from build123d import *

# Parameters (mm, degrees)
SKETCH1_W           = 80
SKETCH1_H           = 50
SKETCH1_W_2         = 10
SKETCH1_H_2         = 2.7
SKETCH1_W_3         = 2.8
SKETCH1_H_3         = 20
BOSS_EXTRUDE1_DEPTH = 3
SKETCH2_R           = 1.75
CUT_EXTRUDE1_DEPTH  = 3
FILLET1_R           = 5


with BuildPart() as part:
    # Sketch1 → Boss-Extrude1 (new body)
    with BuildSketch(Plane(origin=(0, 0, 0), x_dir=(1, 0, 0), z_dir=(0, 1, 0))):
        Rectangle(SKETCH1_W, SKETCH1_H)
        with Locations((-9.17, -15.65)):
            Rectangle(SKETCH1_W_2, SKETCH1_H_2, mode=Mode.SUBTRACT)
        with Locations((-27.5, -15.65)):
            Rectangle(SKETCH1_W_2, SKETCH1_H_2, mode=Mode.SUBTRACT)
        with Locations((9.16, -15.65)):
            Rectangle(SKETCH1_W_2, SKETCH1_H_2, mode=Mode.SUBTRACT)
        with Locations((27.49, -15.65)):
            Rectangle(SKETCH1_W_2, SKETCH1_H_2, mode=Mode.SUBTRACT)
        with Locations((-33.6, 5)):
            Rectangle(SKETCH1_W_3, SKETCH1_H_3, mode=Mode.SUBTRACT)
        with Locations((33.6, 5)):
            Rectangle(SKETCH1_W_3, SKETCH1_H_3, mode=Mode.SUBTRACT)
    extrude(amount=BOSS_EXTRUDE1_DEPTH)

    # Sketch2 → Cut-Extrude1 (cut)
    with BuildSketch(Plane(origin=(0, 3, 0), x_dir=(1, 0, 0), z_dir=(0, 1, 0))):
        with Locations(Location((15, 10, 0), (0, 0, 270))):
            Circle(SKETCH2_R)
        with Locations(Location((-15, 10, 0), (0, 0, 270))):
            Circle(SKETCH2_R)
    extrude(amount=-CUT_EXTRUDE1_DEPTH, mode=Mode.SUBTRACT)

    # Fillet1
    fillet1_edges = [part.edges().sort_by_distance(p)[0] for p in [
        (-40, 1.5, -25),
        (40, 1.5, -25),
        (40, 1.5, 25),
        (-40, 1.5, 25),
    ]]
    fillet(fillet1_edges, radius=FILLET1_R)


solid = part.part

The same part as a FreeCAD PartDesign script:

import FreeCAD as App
import Part
import Sketcher
from FreeCAD import Vector


def edges_at(feature, points):
    """Names of the edges that pass closest to the given points."""
    edges = feature.Shape.Edges
    near = lambda p: min(range(len(edges)), key=lambda i: edges[i].distToShape(Part.Vertex(*p))[0])
    return sorted({f"Edge{near(p) + 1}" for p in points})

doc = App.newDocument("Part")
params = doc.addObject("Spreadsheet::Sheet", "Params")
for row, (alias, value) in enumerate([
    ("sketch1_width", "80 mm"),
    ("sketch1_width2", "10 mm"),
    ("sketch1_height", "50 mm"),
    ("sketch1_height2", "20 mm"),
    ("sketch1_width3", "2.8 mm"),
    ("pad1_length", "3 mm"),
    ("sketch2_diameter", "3.5 mm"),
    ("pocket1_length", "3 mm"),
    ("fillet_radius", "5 mm"),
], start=1):
    params.set(f"A{row}", alias)
    params.set(f"B{row}", "=" + value)
    params.setAlias(f"B{row}", alias)

body = doc.addObject("PartDesign::Body", "Body")

# Sketch on XZ plane
sketch1 = body.newObject("Sketcher::SketchObject", "Sketch")
sketch1.AttachmentSupport = (doc.getObject("XZ_Plane"), [""])
sketch1.MapMode = "FlatFace"
sketch1.addGeometry(Part.LineSegment(Vector(-40, -25, 0), Vector(-40, 25, 0)), False)
sketch1.addGeometry(Part.LineSegment(Vector(-40, 25, 0), Vector(40, 25, 0)), False)
sketch1.addGeometry(Part.LineSegment(Vector(40, 25, 0), Vector(40, -25, 0)), False)
sketch1.addGeometry(Part.LineSegment(Vector(40, -25, 0), Vector(-40, -25, 0)), False)
sketch1.addGeometry(Part.LineSegment(Vector(-22.5, 17, 0), Vector(-32.5, 17, 0)), False)
sketch1.addGeometry(Part.LineSegment(Vector(-32.5, 17, 0), Vector(-32.5, 14.3, 0)), False)
sketch1.addGeometry(Part.LineSegment(Vector(-32.5, 14.3, 0), Vector(-22.5, 14.3, 0)), False)
sketch1.addGeometry(Part.LineSegment(Vector(-22.5, 14.3, 0), Vector(-22.5, 17, 0)), False)
sketch1.addGeometry(Part.LineSegment(Vector(-4.2, 17, 0), Vector(-14.2, 17, 0)), False)
sketch1.addGeometry(Part.LineSegment(Vector(-14.2, 17, 0), Vector(-14.2, 14.3, 0)), False)
sketch1.addGeometry(Part.LineSegment(Vector(-14.2, 14.3, 0), Vector(-4.2, 14.3, 0)), False)
sketch1.addGeometry(Part.LineSegment(Vector(-4.2, 14.3, 0), Vector(-4.2, 17, 0)), False)
sketch1.addGeometry(Part.LineSegment(Vector(14.2, 17, 0), Vector(4.2, 17, 0)), False)
sketch1.addGeometry(Part.LineSegment(Vector(4.2, 17, 0), Vector(4.2, 14.3, 0)), False)
sketch1.addGeometry(Part.LineSegment(Vector(4.2, 14.3, 0), Vector(14.2, 14.3, 0)), False)
sketch1.addGeometry(Part.LineSegment(Vector(14.2, 14.3, 0), Vector(14.2, 17, 0)), False)
sketch1.addGeometry(Part.LineSegment(Vector(32.5, 17, 0), Vector(22.5, 17, 0)), False)
sketch1.addGeometry(Part.LineSegment(Vector(22.5, 17, 0), Vector(22.5, 14.3, 0)), False)
sketch1.addGeometry(Part.LineSegment(Vector(22.5, 14.3, 0), Vector(32.5, 14.3, 0)), False)
sketch1.addGeometry(Part.LineSegment(Vector(32.5, 14.3, 0), Vector(32.5, 17, 0)), False)
sketch1.addGeometry(Part.LineSegment(Vector(-32.2, 5, 0), Vector(-35, 5, 0)), False)
sketch1.addGeometry(Part.LineSegment(Vector(-35, 5, 0), Vector(-35, -15, 0)), False)
sketch1.addGeometry(Part.LineSegment(Vector(-35, -15, 0), Vector(-32.2, -15, 0)), False)
sketch1.addGeometry(Part.LineSegment(Vector(-32.2, -15, 0), Vector(-32.2, 5, 0)), False)
sketch1.addGeometry(Part.LineSegment(Vector(35, 5, 0), Vector(32.2, 5, 0)), False)
sketch1.addGeometry(Part.LineSegment(Vector(32.2, 5, 0), Vector(32.2, -15, 0)), False)
sketch1.addGeometry(Part.LineSegment(Vector(32.2, -15, 0), Vector(35, -15, 0)), False)
sketch1.addGeometry(Part.LineSegment(Vector(35, -15, 0), Vector(35, 5, 0)), False)
sketch1.addConstraint(Sketcher.Constraint("Coincident", 0, 2, 1, 1))
sketch1.addConstraint(Sketcher.Constraint("Coincident", 1, 2, 2, 1))
sketch1.addConstraint(Sketcher.Constraint("Coincident", 2, 2, 3, 1))
sketch1.addConstraint(Sketcher.Constraint("Coincident", 3, 2, 0, 1))
sketch1.addConstraint(Sketcher.Constraint("Coincident", 4, 2, 5, 1))
sketch1.addConstraint(Sketcher.Constraint("Coincident", 5, 2, 6, 1))
sketch1.addConstraint(Sketcher.Constraint("Coincident", 6, 2, 7, 1))
sketch1.addConstraint(Sketcher.Constraint("Coincident", 7, 2, 4, 1))
sketch1.addConstraint(Sketcher.Constraint("Coincident", 8, 2, 9, 1))
sketch1.addConstraint(Sketcher.Constraint("Coincident", 9, 2, 10, 1))
sketch1.addConstraint(Sketcher.Constraint("Coincident", 10, 2, 11, 1))
sketch1.addConstraint(Sketcher.Constraint("Coincident", 11, 2, 8, 1))
sketch1.addConstraint(Sketcher.Constraint("Coincident", 12, 2, 13, 1))
sketch1.addConstraint(Sketcher.Constraint("Coincident", 13, 2, 14, 1))
sketch1.addConstraint(Sketcher.Constraint("Coincident", 14, 2, 15, 1))
sketch1.addConstraint(Sketcher.Constraint("Coincident", 15, 2, 12, 1))
sketch1.addConstraint(Sketcher.Constraint("Coincident", 16, 2, 17, 1))
sketch1.addConstraint(Sketcher.Constraint("Coincident", 17, 2, 18, 1))
sketch1.addConstraint(Sketcher.Constraint("Coincident", 18, 2, 19, 1))
sketch1.addConstraint(Sketcher.Constraint("Coincident", 19, 2, 16, 1))
sketch1.addConstraint(Sketcher.Constraint("Coincident", 20, 2, 21, 1))
sketch1.addConstraint(Sketcher.Constraint("Coincident", 21, 2, 22, 1))
sketch1.addConstraint(Sketcher.Constraint("Coincident", 22, 2, 23, 1))
sketch1.addConstraint(Sketcher.Constraint("Coincident", 23, 2, 20, 1))
sketch1.addConstraint(Sketcher.Constraint("Coincident", 24, 2, 25, 1))
sketch1.addConstraint(Sketcher.Constraint("Coincident", 25, 2, 26, 1))
sketch1.addConstraint(Sketcher.Constraint("Coincident", 26, 2, 27, 1))
sketch1.addConstraint(Sketcher.Constraint("Coincident", 27, 2, 24, 1))
sketch1.addConstraint(Sketcher.Constraint("Vertical", 0))
sketch1.addConstraint(Sketcher.Constraint("Horizontal", 1))
sketch1.addConstraint(Sketcher.Constraint("Vertical", 2))
sketch1.addConstraint(Sketcher.Constraint("Horizontal", 3))
sketch1.addConstraint(Sketcher.Constraint("Horizontal", 4))
sketch1.addConstraint(Sketcher.Constraint("Vertical", 5))
sketch1.addConstraint(Sketcher.Constraint("Horizontal", 6))
sketch1.addConstraint(Sketcher.Constraint("Vertical", 7))
sketch1.addConstraint(Sketcher.Constraint("Horizontal", 8))
sketch1.addConstraint(Sketcher.Constraint("Vertical", 9))
sketch1.addConstraint(Sketcher.Constraint("Horizontal", 10))
sketch1.addConstraint(Sketcher.Constraint("Vertical", 11))
sketch1.addConstraint(Sketcher.Constraint("Horizontal", 12))
sketch1.addConstraint(Sketcher.Constraint("Vertical", 13))
sketch1.addConstraint(Sketcher.Constraint("Horizontal", 14))
sketch1.addConstraint(Sketcher.Constraint("Vertical", 15))
sketch1.addConstraint(Sketcher.Constraint("Horizontal", 16))
sketch1.addConstraint(Sketcher.Constraint("Vertical", 17))
sketch1.addConstraint(Sketcher.Constraint("Horizontal", 18))
sketch1.addConstraint(Sketcher.Constraint("Vertical", 19))
sketch1.addConstraint(Sketcher.Constraint("Horizontal", 20))
sketch1.addConstraint(Sketcher.Constraint("Vertical", 21))
sketch1.addConstraint(Sketcher.Constraint("Horizontal", 22))
sketch1.addConstraint(Sketcher.Constraint("Vertical", 23))
sketch1.addConstraint(Sketcher.Constraint("Horizontal", 24))
sketch1.addConstraint(Sketcher.Constraint("Vertical", 25))
sketch1.addConstraint(Sketcher.Constraint("Horizontal", 26))
sketch1.addConstraint(Sketcher.Constraint("Vertical", 27))
sketch1.addConstraint(Sketcher.Constraint("Symmetric", 0, 2, 2, 2, -1, 1))
sketch1.addConstraint(Sketcher.Constraint("Symmetric", 23, 2, 24, 2, -2))
sketch1.addConstraint(Sketcher.Constraint("Symmetric", 21, 2, 26, 2, -2))
sketch1.addConstraint(Sketcher.Constraint("Horizontal", 7, 2, 8, 2))
sketch1.addConstraint(Sketcher.Constraint("Horizontal", 6, 2, 9, 2))
sketch1.addConstraint(Sketcher.Constraint("Horizontal", 11, 2, 12, 2))
sketch1.addConstraint(Sketcher.Constraint("Horizontal", 10, 2, 13, 2))
sketch1.addConstraint(Sketcher.Constraint("Horizontal", 15, 2, 16, 2))
sketch1.addConstraint(Sketcher.Constraint("Horizontal", 14, 2, 17, 2))
sketch1.addConstraint(Sketcher.Constraint("Equal", 6, 8))
sketch1.addConstraint(Sketcher.Constraint("Equal", 10, 12))
sketch1.addConstraint(Sketcher.Constraint("Equal", 14, 16))
sketch1.addConstraint(Sketcher.Constraint("DistanceX", 1, 1, 1, 2, 80.0))
sketch1.addConstraint(Sketcher.Constraint("DistanceX", 4, 2, 4, 1, 10.0))
sketch1.addConstraint(Sketcher.Constraint("DistanceY", 0, 1, 0, 2, 50.0))
sketch1.addConstraint(Sketcher.Constraint("DistanceY", 21, 2, 21, 1, 20.0))
sketch1.addConstraint(Sketcher.Constraint("DistanceX", 20, 2, 20, 1, 2.8))
sketch1.addConstraint(Sketcher.Constraint("DistanceY", 5, 2, 5, 1, 2.7))
sketch1.addConstraint(Sketcher.Constraint("DistanceY", -1, 1, 4, 2, 17.0))
sketch1.addConstraint(Sketcher.Constraint("DistanceX", 20, 2, -1, 1, 35.0))
sketch1.addConstraint(Sketcher.Constraint("DistanceY", -1, 1, 20, 2, 5.0))
sketch1.addConstraint(Sketcher.Constraint("DistanceX", 4, 2, -1, 1, 32.5))
sketch1.addConstraint(Sketcher.Constraint("DistanceX", 8, 2, -1, 1, 14.17))
sketch1.addConstraint(Sketcher.Constraint("DistanceX", -1, 1, 12, 2, 4.16))
sketch1.addConstraint(Sketcher.Constraint("DistanceX", -1, 1, 16, 2, 22.49))
sketch1.setExpression("Constraints[68]", "Params.sketch1_width")
sketch1.setExpression("Constraints[69]", "Params.sketch1_width2")
sketch1.setExpression("Constraints[70]", "Params.sketch1_height")
sketch1.setExpression("Constraints[71]", "Params.sketch1_height2")
sketch1.setExpression("Constraints[72]", "Params.sketch1_width3")
pad1 = body.newObject("PartDesign::Pad", "Pad")
pad1.Profile = sketch1
pad1.setExpression("Length", "Params.pad1_length")
pad1.Reversed = True

# Sketch on XZ plane
sketch2 = body.newObject("Sketcher::SketchObject", "Sketch001")
sketch2.AttachmentSupport = (doc.getObject("XZ_Plane"), [""])
sketch2.MapMode = "FlatFace"
sketch2.AttachmentOffset = App.Placement(Vector(0, 0, -3), App.Rotation())
sketch2.addGeometry(Part.Circle(Vector(15, -10, 0), Vector(0, 0, 1), 1.8), False)
sketch2.addGeometry(Part.Circle(Vector(-15, -10, 0), Vector(0, 0, 1), 1.8), False)
sketch2.addConstraint(Sketcher.Constraint("Equal", 0, 1))
sketch2.addConstraint(Sketcher.Constraint("Symmetric", 0, 3, 1, 3, -2))
sketch2.addConstraint(Sketcher.Constraint("Diameter", 0, 3.5))
sketch2.addConstraint(Sketcher.Constraint("DistanceX", -1, 1, 0, 3, 15.0))
sketch2.addConstraint(Sketcher.Constraint("DistanceY", 0, 3, -1, 1, 10.0))
sketch2.setExpression("Constraints[2]", "Params.sketch2_diameter")
pocket1 = body.newObject("PartDesign::Pocket", "Pocket")
pocket1.Profile = sketch2
pocket1.setExpression("Length", "Params.pocket1_length")
pocket1.Reversed = True
doc.recompute()

fillet = body.newObject("PartDesign::Fillet", "Fillet")
fillet.Base = (pocket1, edges_at(pocket1, [
    (-40, 1.5, -25),
    (40, 1.5, -25),
    (40, 1.5, 25),
    (-40, 1.5, 25),
]))
fillet.setExpression("Radius", "Params.fillet_radius")

doc.recompute()
